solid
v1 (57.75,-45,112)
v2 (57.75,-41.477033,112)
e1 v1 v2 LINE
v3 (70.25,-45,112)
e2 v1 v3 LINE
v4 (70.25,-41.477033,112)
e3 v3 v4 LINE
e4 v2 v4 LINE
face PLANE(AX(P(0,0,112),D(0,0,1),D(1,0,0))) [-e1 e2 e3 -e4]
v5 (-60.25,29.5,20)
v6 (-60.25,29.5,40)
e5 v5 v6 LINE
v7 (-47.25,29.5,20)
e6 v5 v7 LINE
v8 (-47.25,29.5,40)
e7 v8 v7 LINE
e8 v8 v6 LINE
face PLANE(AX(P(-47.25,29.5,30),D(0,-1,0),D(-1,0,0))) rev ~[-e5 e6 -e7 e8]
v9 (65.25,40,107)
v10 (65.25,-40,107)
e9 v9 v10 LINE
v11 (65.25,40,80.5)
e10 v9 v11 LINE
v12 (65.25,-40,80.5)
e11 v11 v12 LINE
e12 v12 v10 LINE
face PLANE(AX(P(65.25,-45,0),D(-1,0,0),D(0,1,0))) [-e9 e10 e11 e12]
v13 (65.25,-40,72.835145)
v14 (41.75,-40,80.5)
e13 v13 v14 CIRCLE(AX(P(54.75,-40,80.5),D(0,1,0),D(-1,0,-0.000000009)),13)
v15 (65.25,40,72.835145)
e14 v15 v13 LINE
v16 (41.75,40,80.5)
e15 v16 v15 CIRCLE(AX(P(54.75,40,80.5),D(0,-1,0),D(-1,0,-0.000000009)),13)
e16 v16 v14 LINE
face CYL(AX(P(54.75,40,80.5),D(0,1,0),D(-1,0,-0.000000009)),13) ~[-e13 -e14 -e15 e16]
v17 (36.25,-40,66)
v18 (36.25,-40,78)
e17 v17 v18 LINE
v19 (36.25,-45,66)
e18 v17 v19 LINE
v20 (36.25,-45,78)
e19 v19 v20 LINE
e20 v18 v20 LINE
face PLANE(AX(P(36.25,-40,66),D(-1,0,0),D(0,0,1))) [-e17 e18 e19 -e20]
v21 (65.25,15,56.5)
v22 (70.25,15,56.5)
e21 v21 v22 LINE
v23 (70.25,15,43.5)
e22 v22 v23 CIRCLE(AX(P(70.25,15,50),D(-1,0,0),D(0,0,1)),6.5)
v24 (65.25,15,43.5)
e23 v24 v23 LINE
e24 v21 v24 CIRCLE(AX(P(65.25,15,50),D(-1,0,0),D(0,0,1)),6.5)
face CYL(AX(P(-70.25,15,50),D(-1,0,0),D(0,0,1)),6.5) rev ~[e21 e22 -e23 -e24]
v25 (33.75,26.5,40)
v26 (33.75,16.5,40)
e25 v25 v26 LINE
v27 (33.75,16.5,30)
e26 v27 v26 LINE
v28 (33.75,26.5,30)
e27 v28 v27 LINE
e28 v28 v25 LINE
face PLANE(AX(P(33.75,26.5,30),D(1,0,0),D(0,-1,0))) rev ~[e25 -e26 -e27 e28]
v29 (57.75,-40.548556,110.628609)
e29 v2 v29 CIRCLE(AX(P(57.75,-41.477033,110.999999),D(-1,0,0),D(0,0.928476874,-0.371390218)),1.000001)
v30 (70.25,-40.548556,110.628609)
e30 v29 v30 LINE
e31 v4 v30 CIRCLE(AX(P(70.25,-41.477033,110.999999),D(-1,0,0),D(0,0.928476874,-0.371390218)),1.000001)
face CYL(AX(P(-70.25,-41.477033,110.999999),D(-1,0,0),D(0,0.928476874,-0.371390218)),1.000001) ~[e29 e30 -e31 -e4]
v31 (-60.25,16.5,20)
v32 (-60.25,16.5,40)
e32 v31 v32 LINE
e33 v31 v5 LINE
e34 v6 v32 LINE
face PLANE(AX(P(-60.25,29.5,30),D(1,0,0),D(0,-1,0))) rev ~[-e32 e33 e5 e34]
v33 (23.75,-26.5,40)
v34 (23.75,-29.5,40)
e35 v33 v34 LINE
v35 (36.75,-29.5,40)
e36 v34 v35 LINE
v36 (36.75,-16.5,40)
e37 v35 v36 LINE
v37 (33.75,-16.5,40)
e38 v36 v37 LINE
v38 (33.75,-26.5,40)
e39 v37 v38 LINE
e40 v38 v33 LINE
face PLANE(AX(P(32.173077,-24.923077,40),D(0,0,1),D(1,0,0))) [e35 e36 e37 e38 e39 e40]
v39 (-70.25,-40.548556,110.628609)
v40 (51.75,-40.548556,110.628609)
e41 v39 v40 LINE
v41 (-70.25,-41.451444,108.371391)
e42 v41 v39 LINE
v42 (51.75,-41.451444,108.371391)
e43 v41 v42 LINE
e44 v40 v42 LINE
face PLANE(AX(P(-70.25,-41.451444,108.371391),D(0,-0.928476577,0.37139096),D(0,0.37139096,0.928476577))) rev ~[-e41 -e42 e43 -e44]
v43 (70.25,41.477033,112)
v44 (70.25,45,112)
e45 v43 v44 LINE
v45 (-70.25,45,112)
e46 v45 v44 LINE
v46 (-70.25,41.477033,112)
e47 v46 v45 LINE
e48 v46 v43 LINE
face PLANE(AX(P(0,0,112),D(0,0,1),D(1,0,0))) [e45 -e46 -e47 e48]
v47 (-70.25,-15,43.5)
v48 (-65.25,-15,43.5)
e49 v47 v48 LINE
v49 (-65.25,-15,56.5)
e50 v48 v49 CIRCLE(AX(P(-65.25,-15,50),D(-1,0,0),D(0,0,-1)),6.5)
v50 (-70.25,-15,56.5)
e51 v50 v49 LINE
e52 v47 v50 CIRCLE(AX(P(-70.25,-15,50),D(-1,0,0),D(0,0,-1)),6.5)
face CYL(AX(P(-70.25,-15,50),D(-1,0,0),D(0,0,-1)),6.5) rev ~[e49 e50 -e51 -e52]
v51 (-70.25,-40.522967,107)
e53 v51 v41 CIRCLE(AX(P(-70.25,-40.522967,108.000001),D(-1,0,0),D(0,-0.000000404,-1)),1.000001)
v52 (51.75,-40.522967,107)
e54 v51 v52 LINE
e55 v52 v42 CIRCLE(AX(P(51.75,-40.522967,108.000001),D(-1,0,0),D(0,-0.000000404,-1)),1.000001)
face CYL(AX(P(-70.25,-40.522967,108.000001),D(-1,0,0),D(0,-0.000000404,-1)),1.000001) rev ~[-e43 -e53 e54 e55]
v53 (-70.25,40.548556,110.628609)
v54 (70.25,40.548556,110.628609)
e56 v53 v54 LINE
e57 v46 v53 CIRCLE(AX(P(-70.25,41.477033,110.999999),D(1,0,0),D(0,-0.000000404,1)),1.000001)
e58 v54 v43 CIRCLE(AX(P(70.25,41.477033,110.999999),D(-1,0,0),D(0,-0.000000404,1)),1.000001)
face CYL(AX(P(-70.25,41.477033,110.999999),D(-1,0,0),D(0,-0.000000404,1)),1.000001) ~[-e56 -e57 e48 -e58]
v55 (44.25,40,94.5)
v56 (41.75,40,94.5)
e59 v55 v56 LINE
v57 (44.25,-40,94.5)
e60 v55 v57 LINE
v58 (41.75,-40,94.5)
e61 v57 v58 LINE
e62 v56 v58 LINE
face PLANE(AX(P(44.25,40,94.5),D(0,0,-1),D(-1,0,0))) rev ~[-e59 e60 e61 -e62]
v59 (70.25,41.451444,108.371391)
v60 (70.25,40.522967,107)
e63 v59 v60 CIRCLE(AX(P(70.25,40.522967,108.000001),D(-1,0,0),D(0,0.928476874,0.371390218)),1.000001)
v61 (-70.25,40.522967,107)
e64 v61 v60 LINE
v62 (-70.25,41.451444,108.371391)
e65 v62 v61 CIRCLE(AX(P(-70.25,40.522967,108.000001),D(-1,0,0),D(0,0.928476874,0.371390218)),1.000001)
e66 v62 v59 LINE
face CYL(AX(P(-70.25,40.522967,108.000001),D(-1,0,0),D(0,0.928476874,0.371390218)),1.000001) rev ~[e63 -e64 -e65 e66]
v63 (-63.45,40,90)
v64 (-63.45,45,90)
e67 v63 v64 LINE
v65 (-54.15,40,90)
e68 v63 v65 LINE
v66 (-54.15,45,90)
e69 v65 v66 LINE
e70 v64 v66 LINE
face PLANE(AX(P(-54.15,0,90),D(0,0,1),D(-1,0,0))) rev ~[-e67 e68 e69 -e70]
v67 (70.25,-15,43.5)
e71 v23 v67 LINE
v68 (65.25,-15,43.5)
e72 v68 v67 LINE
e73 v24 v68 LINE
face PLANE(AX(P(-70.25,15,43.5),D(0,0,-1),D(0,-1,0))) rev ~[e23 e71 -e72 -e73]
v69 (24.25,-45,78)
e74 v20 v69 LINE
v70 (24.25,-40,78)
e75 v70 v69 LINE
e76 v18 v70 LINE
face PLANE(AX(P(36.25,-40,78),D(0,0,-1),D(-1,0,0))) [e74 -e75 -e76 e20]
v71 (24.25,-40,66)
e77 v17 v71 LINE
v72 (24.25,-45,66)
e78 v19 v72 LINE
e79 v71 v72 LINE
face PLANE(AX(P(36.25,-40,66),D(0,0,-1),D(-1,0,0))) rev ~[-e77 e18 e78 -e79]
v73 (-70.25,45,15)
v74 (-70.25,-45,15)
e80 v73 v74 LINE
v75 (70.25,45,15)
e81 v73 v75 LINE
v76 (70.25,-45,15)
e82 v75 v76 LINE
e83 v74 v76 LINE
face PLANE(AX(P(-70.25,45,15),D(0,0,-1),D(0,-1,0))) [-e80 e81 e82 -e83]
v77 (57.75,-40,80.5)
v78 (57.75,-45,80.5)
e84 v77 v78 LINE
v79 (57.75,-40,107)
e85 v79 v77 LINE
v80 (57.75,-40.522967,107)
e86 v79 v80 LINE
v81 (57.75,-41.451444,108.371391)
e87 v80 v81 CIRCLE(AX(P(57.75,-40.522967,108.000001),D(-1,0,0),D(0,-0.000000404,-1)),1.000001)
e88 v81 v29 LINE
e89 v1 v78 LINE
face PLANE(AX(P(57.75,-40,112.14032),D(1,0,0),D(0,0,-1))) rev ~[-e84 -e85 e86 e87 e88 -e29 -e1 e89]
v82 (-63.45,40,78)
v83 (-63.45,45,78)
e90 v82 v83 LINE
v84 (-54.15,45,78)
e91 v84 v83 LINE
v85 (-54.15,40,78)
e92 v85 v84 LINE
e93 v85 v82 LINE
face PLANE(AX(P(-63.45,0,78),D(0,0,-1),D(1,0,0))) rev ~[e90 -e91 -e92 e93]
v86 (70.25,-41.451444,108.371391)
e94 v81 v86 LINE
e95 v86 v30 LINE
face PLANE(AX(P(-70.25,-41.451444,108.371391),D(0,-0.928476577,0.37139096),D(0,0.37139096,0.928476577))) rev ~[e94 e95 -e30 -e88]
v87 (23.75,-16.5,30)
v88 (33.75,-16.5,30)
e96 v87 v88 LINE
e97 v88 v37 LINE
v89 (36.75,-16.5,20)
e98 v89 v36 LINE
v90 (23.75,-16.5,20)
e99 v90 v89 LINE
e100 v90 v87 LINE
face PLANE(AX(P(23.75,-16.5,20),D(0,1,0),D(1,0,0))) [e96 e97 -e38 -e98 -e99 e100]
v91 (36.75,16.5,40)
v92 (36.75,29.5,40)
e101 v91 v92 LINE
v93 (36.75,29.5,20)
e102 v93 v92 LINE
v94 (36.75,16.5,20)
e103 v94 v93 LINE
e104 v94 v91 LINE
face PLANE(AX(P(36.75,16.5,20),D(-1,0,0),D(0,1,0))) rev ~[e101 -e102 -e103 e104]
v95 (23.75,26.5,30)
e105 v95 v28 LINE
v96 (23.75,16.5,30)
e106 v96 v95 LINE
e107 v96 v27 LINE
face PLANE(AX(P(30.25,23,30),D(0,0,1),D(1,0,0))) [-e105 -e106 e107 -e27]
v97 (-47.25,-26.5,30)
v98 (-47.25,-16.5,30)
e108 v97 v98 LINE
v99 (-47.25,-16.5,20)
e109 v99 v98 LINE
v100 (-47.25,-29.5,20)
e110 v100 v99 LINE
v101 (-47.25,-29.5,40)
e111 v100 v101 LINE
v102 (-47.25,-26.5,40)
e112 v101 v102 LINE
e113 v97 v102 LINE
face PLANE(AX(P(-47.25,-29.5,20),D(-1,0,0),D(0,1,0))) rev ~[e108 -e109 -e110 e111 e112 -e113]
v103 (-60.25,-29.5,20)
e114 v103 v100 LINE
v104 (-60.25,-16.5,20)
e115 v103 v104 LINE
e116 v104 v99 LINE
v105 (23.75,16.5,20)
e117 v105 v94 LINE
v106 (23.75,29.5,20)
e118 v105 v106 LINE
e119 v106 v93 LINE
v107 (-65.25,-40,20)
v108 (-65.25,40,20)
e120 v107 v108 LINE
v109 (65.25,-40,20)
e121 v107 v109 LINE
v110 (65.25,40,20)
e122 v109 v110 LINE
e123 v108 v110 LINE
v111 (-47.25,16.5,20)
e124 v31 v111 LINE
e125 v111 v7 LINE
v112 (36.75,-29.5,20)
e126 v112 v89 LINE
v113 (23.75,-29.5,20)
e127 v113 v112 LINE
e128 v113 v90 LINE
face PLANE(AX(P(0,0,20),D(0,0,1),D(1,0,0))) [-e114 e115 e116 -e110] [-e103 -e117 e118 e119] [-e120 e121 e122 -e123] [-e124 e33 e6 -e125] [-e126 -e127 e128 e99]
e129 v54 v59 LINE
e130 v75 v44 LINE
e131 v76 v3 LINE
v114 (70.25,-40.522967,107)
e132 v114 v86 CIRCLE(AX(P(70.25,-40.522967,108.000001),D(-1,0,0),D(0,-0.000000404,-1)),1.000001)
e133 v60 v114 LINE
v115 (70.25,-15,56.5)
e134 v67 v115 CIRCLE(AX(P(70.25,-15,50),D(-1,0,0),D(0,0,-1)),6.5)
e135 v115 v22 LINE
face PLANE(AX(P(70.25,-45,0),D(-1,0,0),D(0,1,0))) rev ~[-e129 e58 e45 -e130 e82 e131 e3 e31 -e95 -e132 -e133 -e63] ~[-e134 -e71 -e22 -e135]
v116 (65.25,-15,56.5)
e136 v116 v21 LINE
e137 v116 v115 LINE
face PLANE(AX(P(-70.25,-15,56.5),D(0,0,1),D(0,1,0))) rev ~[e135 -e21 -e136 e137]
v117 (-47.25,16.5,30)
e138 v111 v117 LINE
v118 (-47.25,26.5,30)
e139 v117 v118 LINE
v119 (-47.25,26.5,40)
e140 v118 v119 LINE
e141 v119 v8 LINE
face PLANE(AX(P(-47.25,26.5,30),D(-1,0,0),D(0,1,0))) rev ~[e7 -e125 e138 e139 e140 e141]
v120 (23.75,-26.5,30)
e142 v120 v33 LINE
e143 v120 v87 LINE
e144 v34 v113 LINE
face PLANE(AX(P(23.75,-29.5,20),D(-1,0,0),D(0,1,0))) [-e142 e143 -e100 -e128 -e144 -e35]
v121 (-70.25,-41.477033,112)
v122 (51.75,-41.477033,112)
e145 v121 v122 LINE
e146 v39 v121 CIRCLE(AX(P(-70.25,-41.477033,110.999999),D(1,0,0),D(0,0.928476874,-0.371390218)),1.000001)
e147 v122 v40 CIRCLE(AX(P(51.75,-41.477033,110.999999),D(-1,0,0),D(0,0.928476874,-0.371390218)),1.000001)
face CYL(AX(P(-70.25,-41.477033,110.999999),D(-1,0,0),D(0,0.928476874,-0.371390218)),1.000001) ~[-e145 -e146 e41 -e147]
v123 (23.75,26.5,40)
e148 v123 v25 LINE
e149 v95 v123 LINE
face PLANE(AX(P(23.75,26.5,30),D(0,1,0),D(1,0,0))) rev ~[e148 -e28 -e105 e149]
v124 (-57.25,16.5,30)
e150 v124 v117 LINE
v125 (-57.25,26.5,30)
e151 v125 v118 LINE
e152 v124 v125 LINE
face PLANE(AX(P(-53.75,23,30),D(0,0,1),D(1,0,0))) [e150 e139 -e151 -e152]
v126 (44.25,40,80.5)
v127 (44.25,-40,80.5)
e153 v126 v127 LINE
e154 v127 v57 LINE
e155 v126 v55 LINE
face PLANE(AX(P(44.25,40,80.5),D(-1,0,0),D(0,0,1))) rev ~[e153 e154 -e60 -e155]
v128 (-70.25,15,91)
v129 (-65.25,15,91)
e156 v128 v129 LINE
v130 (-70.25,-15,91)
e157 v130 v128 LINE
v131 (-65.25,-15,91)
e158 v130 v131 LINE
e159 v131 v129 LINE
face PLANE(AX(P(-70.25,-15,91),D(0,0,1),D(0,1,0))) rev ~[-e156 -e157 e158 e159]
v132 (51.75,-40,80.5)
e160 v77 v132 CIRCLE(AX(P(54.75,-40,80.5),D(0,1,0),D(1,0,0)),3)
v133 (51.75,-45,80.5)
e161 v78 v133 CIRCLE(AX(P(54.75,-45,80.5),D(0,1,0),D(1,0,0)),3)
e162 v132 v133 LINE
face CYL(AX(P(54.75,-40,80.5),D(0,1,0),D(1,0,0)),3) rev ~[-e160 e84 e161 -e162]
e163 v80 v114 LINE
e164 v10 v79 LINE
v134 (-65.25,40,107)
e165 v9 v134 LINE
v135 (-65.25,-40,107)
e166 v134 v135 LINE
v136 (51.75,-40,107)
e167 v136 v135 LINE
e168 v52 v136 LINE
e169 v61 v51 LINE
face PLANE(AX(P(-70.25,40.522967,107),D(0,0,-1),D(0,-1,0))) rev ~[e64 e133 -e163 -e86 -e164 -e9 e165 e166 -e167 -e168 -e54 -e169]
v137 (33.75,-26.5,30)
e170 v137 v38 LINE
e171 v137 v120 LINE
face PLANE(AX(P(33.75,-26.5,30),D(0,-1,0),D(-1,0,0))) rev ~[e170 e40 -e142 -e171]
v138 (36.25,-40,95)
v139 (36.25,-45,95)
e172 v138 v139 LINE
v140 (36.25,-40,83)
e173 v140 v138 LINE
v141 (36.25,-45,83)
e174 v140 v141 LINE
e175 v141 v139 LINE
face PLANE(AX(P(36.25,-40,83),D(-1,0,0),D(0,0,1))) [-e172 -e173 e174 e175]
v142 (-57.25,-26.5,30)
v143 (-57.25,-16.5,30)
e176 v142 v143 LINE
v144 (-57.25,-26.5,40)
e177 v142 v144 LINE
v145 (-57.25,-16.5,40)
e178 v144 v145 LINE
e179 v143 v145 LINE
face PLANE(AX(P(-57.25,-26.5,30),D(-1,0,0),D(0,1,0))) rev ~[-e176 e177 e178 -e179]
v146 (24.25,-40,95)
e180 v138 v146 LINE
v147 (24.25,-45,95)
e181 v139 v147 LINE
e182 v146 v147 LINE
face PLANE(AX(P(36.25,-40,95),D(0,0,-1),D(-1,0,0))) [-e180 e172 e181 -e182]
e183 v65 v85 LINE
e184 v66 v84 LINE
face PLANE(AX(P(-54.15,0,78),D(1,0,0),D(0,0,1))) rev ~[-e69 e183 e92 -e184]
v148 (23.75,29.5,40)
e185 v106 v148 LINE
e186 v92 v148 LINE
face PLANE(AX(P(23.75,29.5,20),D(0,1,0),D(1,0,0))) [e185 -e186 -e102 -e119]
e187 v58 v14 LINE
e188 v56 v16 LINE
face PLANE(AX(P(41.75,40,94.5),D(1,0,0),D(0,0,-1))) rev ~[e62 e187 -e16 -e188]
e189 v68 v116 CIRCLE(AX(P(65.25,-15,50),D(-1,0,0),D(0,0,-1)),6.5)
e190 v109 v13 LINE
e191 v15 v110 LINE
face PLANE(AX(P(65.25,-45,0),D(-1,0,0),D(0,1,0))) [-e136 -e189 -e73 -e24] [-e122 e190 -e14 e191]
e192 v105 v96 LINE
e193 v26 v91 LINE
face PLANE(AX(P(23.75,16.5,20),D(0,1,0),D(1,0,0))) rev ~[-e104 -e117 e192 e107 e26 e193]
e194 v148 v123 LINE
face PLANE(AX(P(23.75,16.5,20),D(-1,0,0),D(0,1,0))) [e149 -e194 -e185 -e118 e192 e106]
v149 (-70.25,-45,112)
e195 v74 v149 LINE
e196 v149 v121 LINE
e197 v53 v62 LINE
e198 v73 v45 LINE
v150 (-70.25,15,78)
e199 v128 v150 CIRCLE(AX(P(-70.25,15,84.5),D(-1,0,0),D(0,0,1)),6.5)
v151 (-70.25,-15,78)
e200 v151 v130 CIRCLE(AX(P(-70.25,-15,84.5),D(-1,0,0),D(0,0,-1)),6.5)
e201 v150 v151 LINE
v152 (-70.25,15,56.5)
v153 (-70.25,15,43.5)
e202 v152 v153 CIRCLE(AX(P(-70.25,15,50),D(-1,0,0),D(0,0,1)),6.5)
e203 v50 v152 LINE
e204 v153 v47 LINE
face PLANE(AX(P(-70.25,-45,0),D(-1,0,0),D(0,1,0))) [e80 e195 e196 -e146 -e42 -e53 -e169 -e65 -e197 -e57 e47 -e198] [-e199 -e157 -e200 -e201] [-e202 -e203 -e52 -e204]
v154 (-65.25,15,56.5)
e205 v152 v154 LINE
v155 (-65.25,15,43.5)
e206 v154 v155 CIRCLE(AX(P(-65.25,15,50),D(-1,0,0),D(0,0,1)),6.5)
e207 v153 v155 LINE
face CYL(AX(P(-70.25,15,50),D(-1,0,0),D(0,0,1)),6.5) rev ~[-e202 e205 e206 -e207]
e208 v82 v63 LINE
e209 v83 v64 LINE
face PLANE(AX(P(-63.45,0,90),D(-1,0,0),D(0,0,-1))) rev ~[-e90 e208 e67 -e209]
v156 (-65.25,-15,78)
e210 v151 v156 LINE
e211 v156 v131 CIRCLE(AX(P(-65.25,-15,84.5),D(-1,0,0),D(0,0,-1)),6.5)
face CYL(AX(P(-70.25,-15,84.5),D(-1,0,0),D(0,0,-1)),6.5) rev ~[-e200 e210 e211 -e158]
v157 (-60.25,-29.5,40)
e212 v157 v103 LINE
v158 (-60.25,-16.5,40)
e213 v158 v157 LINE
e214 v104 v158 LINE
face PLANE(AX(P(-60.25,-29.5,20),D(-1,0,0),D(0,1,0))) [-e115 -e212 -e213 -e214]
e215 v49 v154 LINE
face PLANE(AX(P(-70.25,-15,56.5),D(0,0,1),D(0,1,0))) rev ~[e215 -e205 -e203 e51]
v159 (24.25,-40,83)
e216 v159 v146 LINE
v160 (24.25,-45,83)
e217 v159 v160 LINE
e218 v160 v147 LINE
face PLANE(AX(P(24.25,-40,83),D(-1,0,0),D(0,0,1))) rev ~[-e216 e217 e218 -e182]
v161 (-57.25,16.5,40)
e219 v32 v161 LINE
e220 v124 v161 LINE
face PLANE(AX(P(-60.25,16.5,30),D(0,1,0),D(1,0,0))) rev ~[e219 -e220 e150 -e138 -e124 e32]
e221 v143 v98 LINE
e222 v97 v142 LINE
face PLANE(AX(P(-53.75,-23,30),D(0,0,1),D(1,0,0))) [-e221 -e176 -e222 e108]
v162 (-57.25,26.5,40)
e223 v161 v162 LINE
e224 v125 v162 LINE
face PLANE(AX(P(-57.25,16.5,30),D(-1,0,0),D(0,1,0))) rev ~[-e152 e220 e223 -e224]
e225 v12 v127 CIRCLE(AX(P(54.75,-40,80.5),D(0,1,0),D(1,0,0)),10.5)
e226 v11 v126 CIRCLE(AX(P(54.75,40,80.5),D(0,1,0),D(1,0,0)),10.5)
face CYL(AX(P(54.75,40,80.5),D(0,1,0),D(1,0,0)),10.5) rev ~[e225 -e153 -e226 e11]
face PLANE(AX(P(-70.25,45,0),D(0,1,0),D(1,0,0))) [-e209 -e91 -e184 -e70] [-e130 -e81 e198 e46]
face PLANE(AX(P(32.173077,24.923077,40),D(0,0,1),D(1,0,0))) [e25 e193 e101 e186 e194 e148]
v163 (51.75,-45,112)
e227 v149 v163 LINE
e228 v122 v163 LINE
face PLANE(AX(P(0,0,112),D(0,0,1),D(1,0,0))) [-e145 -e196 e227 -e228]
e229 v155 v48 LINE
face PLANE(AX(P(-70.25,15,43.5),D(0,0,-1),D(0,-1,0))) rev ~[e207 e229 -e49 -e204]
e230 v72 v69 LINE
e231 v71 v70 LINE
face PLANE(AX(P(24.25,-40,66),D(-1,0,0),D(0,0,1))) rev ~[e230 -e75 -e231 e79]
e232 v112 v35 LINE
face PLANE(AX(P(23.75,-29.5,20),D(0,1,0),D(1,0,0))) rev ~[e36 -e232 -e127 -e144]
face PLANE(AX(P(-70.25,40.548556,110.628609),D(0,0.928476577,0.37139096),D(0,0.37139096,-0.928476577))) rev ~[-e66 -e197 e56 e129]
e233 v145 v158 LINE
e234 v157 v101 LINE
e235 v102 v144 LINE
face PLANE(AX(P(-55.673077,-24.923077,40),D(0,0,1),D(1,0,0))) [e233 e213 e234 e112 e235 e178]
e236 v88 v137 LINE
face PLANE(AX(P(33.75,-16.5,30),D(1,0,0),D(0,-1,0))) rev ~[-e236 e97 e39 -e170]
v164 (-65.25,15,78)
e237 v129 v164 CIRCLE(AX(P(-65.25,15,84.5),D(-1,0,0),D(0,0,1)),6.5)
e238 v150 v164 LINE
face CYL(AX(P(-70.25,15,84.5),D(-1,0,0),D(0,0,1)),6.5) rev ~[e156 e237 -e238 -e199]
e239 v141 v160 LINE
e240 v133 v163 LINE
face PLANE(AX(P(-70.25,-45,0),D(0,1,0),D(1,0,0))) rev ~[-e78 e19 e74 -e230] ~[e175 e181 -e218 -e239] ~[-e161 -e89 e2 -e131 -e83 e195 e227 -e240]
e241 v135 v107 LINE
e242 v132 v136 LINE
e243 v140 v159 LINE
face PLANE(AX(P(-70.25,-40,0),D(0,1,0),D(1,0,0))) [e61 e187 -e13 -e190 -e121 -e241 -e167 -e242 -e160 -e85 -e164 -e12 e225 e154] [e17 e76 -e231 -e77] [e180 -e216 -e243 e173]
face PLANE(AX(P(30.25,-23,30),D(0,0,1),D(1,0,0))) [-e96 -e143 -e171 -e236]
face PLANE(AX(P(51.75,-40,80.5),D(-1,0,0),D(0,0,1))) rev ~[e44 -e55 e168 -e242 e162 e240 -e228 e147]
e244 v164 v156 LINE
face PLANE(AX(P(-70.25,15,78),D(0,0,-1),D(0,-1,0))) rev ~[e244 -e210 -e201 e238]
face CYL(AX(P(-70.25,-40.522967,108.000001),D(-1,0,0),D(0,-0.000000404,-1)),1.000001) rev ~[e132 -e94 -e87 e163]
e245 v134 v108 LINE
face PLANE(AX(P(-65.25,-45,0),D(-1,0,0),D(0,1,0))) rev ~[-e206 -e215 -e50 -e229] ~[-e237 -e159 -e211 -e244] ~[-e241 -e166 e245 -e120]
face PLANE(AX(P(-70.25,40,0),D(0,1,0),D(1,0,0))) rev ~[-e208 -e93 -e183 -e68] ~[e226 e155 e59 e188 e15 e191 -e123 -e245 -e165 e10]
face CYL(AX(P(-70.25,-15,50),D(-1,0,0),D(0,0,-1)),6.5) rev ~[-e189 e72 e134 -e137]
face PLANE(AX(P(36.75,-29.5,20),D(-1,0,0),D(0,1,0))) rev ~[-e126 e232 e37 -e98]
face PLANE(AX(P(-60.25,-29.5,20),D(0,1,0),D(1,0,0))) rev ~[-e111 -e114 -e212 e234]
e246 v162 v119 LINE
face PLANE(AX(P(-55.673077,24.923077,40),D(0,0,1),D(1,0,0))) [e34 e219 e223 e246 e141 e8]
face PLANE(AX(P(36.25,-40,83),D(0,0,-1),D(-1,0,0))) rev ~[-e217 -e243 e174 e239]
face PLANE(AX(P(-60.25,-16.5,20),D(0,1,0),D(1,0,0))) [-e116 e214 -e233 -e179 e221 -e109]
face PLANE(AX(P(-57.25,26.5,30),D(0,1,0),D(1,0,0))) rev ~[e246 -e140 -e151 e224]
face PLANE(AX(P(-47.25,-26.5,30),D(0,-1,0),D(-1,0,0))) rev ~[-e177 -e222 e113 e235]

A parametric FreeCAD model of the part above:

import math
import FreeCAD as App
import Part
import Sketcher

V = App.Vector


def faces_at(feature, points):
    """Names of the faces that lie closest to the given points."""
    faces = feature.Shape.Faces
    near = lambda p: min(range(len(faces)), key=lambda i: faces[i].distToShape(Part.Vertex(*p))[0])
    return sorted({f"Face{near(p) + 1}" for p in points})

doc = App.newDocument("Part")
params = doc.addObject("Spreadsheet::Sheet", "Params")
for row, (alias, value) in enumerate([
    ("sketch1_height", "90 mm"),
    ("sketch1_width", "140.5 mm"),
    ("pad1_length", "112 mm"),
    ("thickness_wall", "5 mm"),
    ("sketch2_radius", "1.000001 mm"),
    ("pocket1_length", "147.9 mm"),
    ("sketch3_radius", "13 mm"),
    ("sketch3_radius2", "10.5 mm"),
    ("sketch3_height", "14 mm"),
    ("pad2_length", "83.1 mm"),
    ("sketch4_radius", "3 mm"),
    ("sketch4_width", "12 mm"),
    ("pocket2_length", "25 mm"),
    ("sketch5_height", "80 mm"),
    ("sketch5_width", "130.5 mm"),
    ("pad3_length", "15 mm"),
    ("sketch6_radius", "6.5 mm"),
    ("sketch6_width", "90 mm"),
    ("sketch6_width2", "30 mm"),
    ("sketch6_height", "15 mm"),
    ("pocket3_length", "174.4 mm"),
    ("sketch7_radius", "6.5 mm"),
    ("sketch7_width", "30 mm"),
    ("pocket4_length", "25 mm"),
    ("sketch8_width", "13 mm"),
    ("pad4_length", "10 mm"),
    ("sketch9_width", "13 mm"),
    ("sketch9_width2", "3 mm"),
    ("pad5_length", "10 mm"),
    ("sketch10_height", "12 mm"),
    ("sketch10_width", "9.3 mm"),
    ("pocket5_length", "61.2 mm"),
], start=1):
    params.set(f"A{row}", alias)
    params.set(f"B{row}", "=" + value)
    params.setAlias(f"B{row}", alias)

body = doc.addObject("PartDesign::Body", "Body")

# Sketch on XY plane
sketch1 = body.newObject("Sketcher::SketchObject", "Sketch")
sketch1.AttachmentSupport = (doc.getObject("XY_Plane"), [""])
sketch1.MapMode = "FlatFace"
sketch1.addGeometry(Part.LineSegment(V(-70, 45, 0), V(-70, -45, 0)), False)
sketch1.addGeometry(Part.LineSegment(V(-70, -45, 0), V(70, -45, 0)), False)
sketch1.addGeometry(Part.LineSegment(V(70, -45, 0), V(70, 45, 0)), False)
sketch1.addGeometry(Part.LineSegment(V(70, 45, 0), V(-70, 45, 0)), False)
sketch1.addConstraint(Sketcher.Constraint("Coincident", 0, 2, 1, 1))
sketch1.addConstraint(Sketcher.Constraint("Coincident", 1, 2, 2, 1))
sketch1.addConstraint(Sketcher.Constraint("Coincident", 2, 2, 3, 1))
sketch1.addConstraint(Sketcher.Constraint("Coincident", 3, 2, 0, 1))
sketch1.addConstraint(Sketcher.Constraint("Vertical", 0))
sketch1.addConstraint(Sketcher.Constraint("Horizontal", 1))
sketch1.addConstraint(Sketcher.Constraint("Vertical", 2))
sketch1.addConstraint(Sketcher.Constraint("Horizontal", 3))
sketch1.addConstraint(Sketcher.Constraint("Symmetric", 0, 2, 2, 2, -1, 1))
sketch1.addConstraint(Sketcher.Constraint("DistanceY", 0, 2, 0, 1, 90.0))
sketch1.addConstraint(Sketcher.Constraint("DistanceX", 1, 1, 1, 2, 140.5))
sketch1.setExpression("Constraints[9]", "Params.sketch1_height")
sketch1.setExpression("Constraints[10]", "Params.sketch1_width")
pad1 = body.newObject("PartDesign::Pad", "Pad")
pad1.Profile = sketch1
pad1.setExpression("Length", "Params.pad1_length")
doc.recompute()

thickness = body.newObject("PartDesign::Thickness", "Thickness")
thickness.Base = (pad1, faces_at(pad1, [(0, 0, 112)]))
thickness.setExpression("Value", "Params.thickness_wall")
thickness.Reversed = True
thickness.Join = "Arc"

# Sketch on YZ plane
sketch2 = body.newObject("Sketcher::SketchObject", "Sketch001")
sketch2.AttachmentSupport = (doc.getObject("YZ_Plane"), [""])
sketch2.MapMode = "FlatFace"
sketch2.AttachmentOffset = App.Placement(V(0, 0, -70.25), App.Rotation())
sketch2.addGeometry(Part.LineSegment(V(40.5, 107, 0), V(-40.5, 107, 0)), False)
sketch2.addGeometry(Part.ArcOfCircle(Part.Circle(V(-40.5, 108, 0), V(0, 0, 1), 1), math.radians(158), math.radians(270)), False)
sketch2.addGeometry(Part.LineSegment(V(-41.5, 108.4, 0), V(-40.5, 110.6, 0)), False)
sketch2.addGeometry(Part.ArcOfCircle(Part.Circle(V(-41.5, 111, 0), V(0, 0, 1), 1), math.radians(-22), math.radians(90)), False)
sketch2.addGeometry(Part.LineSegment(V(-41.5, 112, 0), V(41.5, 112, 0)), False)
sketch2.addGeometry(Part.ArcOfCircle(Part.Circle(V(41.5, 111, 0), V(0, 0, 1), 1), math.radians(90), math.radians(202)), False)
sketch2.addGeometry(Part.LineSegment(V(40.5, 110.6, 0), V(41.5, 108.4, 0)), False)
sketch2.addGeometry(Part.ArcOfCircle(Part.Circle(V(40.5, 108, 0), V(0, 0, 1), 1), math.radians(-90), math.radians(22)), False)
sketch2.addConstraint(Sketcher.Constraint("Tangent", 0, 2, 1, 2))
sketch2.addConstraint(Sketcher.Constraint("Tangent", 1, 1, 2, 1))
sketch2.addConstraint(Sketcher.Constraint("Tangent", 2, 2, 3, 1))
sketch2.addConstraint(Sketcher.Constraint("Tangent", 3, 2, 4, 1))
sketch2.addConstraint(Sketcher.Constraint("Tangent", 4, 2, 5, 1))
sketch2.addConstraint(Sketcher.Constraint("Tangent", 5, 2, 6, 1))
sketch2.addConstraint(Sketcher.Constraint("Tangent", 6, 2, 7, 2))
sketch2.addConstraint(Sketcher.Constraint("Tangent", 7, 1, 0, 1))
sketch2.addConstraint(Sketcher.Constraint("Horizontal", 0))
sketch2.addConstraint(Sketcher.Constraint("Horizontal", 4))
sketch2.addConstraint(Sketcher.Constraint("Equal", 1, 3))
sketch2.addConstraint(Sketcher.Constraint("Equal", 3, 5))
sketch2.addConstraint(Sketcher.Constraint("Equal", 5, 7))
sketch2.addConstraint(Sketcher.Constraint("Symmetric", 2, 2, 5, 2, -2))
sketch2.addConstraint(Sketcher.Constraint("Radius", 1, 1.000001))
sketch2.addConstraint(Sketcher.Constraint("DistanceY", -1, 1, 1, 3, 108.000001))
sketch2.addConstraint(Sketcher.Constraint("DistanceY", -1, 1, 3, 3, 110.999999))
sketch2.addConstraint(Sketcher.Constraint("DistanceX", 1, 3, 5, 3, 82.0))
sketch2.addConstraint(Sketcher.Constraint("Distance", 2, 2.431098))
sketch2.setExpression("Constraints[14]", "Params.sketch2_radius")
pocket1 = body.newObject("PartDesign::Pocket", "Pocket")
pocket1.Profile = sketch2
pocket1.setExpression("Length", "Params.pocket1_length")
pocket1.Reversed = True

# Sketch on XZ plane
sketch3 = body.newObject("Sketcher::SketchObject", "Sketch002")
sketch3.AttachmentSupport = (doc.getObject("XZ_Plane"), [""])
sketch3.MapMode = "FlatFace"
sketch3.AttachmentOffset = App.Placement(V(0, 0, -40), App.Rotation())
sketch3.addGeometry(Part.ArcOfCircle(Part.Circle(V(54.8, 80.5, 0), V(0, 0, 1), 10.5), math.radians(180), math.radians(360)), False)
sketch3.addGeometry(Part.LineSegment(V(44.2, 80.5, 0), V(44.2, 94.5, 0)), False)
sketch3.addGeometry(Part.LineSegment(V(44.2, 94.5, 0), V(41.8, 94.5, 0)), False)
sketch3.addGeometry(Part.LineSegment(V(41.8, 94.5, 0), V(41.8, 80.5, 0)), False)
sketch3.addGeometry(Part.ArcOfCircle(Part.Circle(V(54.8, 80.5, 0), V(0, 0, 1), 13), math.radians(-180), math.radians(-36)), False)
sketch3.addGeometry(Part.LineSegment(V(65.2, 72.8, 0), V(65.2, 80.5, 0)), False)
sketch3.addConstraint(Sketcher.Constraint("Tangent", 0, 1, 1, 1))
sketch3.addConstraint(Sketcher.Constraint("Coincident", 1, 2, 2, 1))
sketch3.addConstraint(Sketcher.Constraint("Coincident", 2, 2, 3, 1))
sketch3.addConstraint(Sketcher.Constraint("Tangent", 3, 2, 4, 1))
sketch3.addConstraint(Sketcher.Constraint("Coincident", 4, 2, 5, 1))
sketch3.addConstraint(Sketcher.Constraint("Tangent", 5, 2, 0, 2))
sketch3.addConstraint(Sketcher.Constraint("Vertical", 1))
sketch3.addConstraint(Sketcher.Constraint("Horizontal", 2))
sketch3.addConstraint(Sketcher.Constraint("Vertical", 3))
sketch3.addConstraint(Sketcher.Constraint("Vertical", 5))
sketch3.addConstraint(Sketcher.Constraint("Coincident", 4, 3, 0, 3))
sketch3.addConstraint(Sketcher.Constraint("Radius", 4, 13.0))
sketch3.addConstraint(Sketcher.Constraint("Radius", 0, 10.5))
sketch3.addConstraint(Sketcher.Constraint("DistanceY", 1, 1, 1, 2, 14.0))
sketch3.addConstraint(Sketcher.Constraint("DistanceY", -1, 1, 0, 3, 80.5))
sketch3.addConstraint(Sketcher.Constraint("DistanceX", -1, 1, 0, 3, 54.75))
sketch3.setExpression("Constraints[11]", "Params.sketch3_radius")
sketch3.setExpression("Constraints[12]", "Params.sketch3_radius2")
sketch3.setExpression("Constraints[13]", "Params.sketch3_height")
pad2 = body.newObject("PartDesign::Pad", "Pad001")
pad2.Profile = sketch3
pad2.setExpression("Length", "Params.pad2_length")

# Sketch on XZ plane
sketch4 = body.newObject("Sketcher::SketchObject", "Sketch003")
sketch4.AttachmentSupport = (doc.getObject("XZ_Plane"), [""])
sketch4.MapMode = "FlatFace"
sketch4.AttachmentOffset = App.Placement(V(0, 0, 40), App.Rotation())
sketch4.addGeometry(Part.LineSegment(V(57.8, 112.1, 0), V(57.8, 80.5, 0)), False)
sketch4.addGeometry(Part.ArcOfCircle(Part.Circle(V(54.8, 80.5, 0), V(0, 0, 1), 3), math.radians(180), math.radians(360)), False)
sketch4.addGeometry(Part.LineSegment(V(51.8, 80.5, 0), V(51.8, 112.1, 0)), False)
sketch4.addGeometry(Part.LineSegment(V(51.8, 112.1, 0), V(57.8, 112.1, 0)), False)
sketch4.addGeometry(Part.LineSegment(V(36.2, 95, 0), V(36.2, 83, 0)), False)
sketch4.addGeometry(Part.LineSegment(V(36.2, 83, 0), V(24.2, 83, 0)), False)
sketch4.addGeometry(Part.LineSegment(V(24.2, 83, 0), V(24.2, 95, 0)), False)
sketch4.addGeometry(Part.LineSegment(V(24.2, 95, 0), V(36.2, 95, 0)), False)
sketch4.addGeometry(Part.LineSegment(V(36.2, 78, 0), V(36.2, 66, 0)), False)
sketch4.addGeometry(Part.LineSegment(V(36.2, 66, 0), V(24.2, 66, 0)), False)
sketch4.addGeometry(Part.LineSegment(V(24.2, 66, 0), V(24.2, 78, 0)), False)
sketch4.addGeometry(Part.LineSegment(V(24.2, 78, 0), V(36.2, 78, 0)), False)
sketch4.addConstraint(Sketcher.Constraint("Tangent", 0, 2, 1, 2))
sketch4.addConstraint(Sketcher.Constraint("Tangent", 1, 1, 2, 1))
sketch4.addConstraint(Sketcher.Constraint("Coincident", 2, 2, 3, 1))
sketch4.addConstraint(Sketcher.Constraint("Coincident", 3, 2, 0, 1))
sketch4.addConstraint(Sketcher.Constraint("Coincident", 4, 2, 5, 1))
sketch4.addConstraint(Sketcher.Constraint("Coincident", 5, 2, 6, 1))
sketch4.addConstraint(Sketcher.Constraint("Coincident", 6, 2, 7, 1))
sketch4.addConstraint(Sketcher.Constraint("Coincident", 7, 2, 4, 1))
sketch4.addConstraint(Sketcher.Constraint("Coincident", 8, 2, 9, 1))
sketch4.addConstraint(Sketcher.Constraint("Coincident", 9, 2, 10, 1))
sketch4.addConstraint(Sketcher.Constraint("Coincident", 10, 2, 11, 1))
sketch4.addConstraint(Sketcher.Constraint("Coincident", 11, 2, 8, 1))
sketch4.addConstraint(Sketcher.Constraint("Vertical", 0))
sketch4.addConstraint(Sketcher.Constraint("Vertical", 2))
sketch4.addConstraint(Sketcher.Constraint("Horizontal", 3))
sketch4.addConstraint(Sketcher.Constraint("Vertical", 4))
sketch4.addConstraint(Sketcher.Constraint("Horizontal", 5))
sketch4.addConstraint(Sketcher.Constraint("Vertical", 6))
sketch4.addConstraint(Sketcher.Constraint("Horizontal", 7))
sketch4.addConstraint(Sketcher.Constraint("Vertical", 8))
sketch4.addConstraint(Sketcher.Constraint("Horizontal", 9))
sketch4.addConstraint(Sketcher.Constraint("Vertical", 10))
sketch4.addConstraint(Sketcher.Constraint("Horizontal", 11))
sketch4.addConstraint(Sketcher.Constraint("Vertical", 7, 2, 8, 2))
sketch4.addConstraint(Sketcher.Constraint("Vertical", 6, 2, 9, 2))
sketch4.addConstraint(Sketcher.Constraint("Equal", 11, 4))
sketch4.addConstraint(Sketcher.Constraint("Equal", 6, 8))
sketch4.addConstraint(Sketcher.Constraint("Radius", 1, 3.0))
sketch4.addConstraint(Sketcher.Constraint("DistanceX", 5, 2, 5, 1, 12.0))
sketch4.addConstraint(Sketcher.Constraint("DistanceY", -1, 1, 4, 2, 83.0))
sketch4.addConstraint(Sketcher.Constraint("DistanceY", -1, 1, 8, 2, 66.0))
sketch4.addConstraint(Sketcher.Constraint("DistanceY", -1, 1, 1, 3, 80.5))
sketch4.addConstraint(Sketcher.Constraint("DistanceX", 4, 2, 1, 1, 15.5))
sketch4.addConstraint(Sketcher.Constraint("DistanceX", -1, 1, 1, 3, 54.75))
sketch4.addConstraint(Sketcher.Constraint("DistanceY", 0, 2, 0, 1, 31.64032))
sketch4.setExpression("Constraints[27]", "Params.sketch4_radius")
sketch4.setExpression("Constraints[28]", "Params.sketch4_width")
pocket2 = body.newObject("PartDesign::Pocket", "Pocket001")
pocket2.Profile = sketch4
pocket2.setExpression("Length", "Params.pocket2_length")
pocket2.Reversed = True

# Sketch on XY plane
sketch5 = body.newObject("Sketcher::SketchObject", "Sketch004")
sketch5.AttachmentSupport = (doc.getObject("XY_Plane"), [""])
sketch5.MapMode = "FlatFace"
sketch5.AttachmentOffset = App.Placement(V(0, 0, 5), App.Rotation())
sketch5.addGeometry(Part.LineSegment(V(-65, 40, 0), V(-65, -40, 0)), False)
sketch5.addGeometry(Part.LineSegment(V(-65, -40, 0), V(65, -40, 0)), False)
sketch5.addGeometry(Part.LineSegment(V(65, -40, 0), V(65, 40, 0)), False)
sketch5.addGeometry(Part.LineSegment(V(65, 40, 0), V(-65, 40, 0)), False)
sketch5.addConstraint(Sketcher.Constraint("Coincident", 0, 2, 1, 1))
sketch5.addConstraint(Sketcher.Constraint("Coincident", 1, 2, 2, 1))
sketch5.addConstraint(Sketcher.Constraint("Coincident", 2, 2, 3, 1))
sketch5.addConstraint(Sketcher.Constraint("Coincident", 3, 2, 0, 1))
sketch5.addConstraint(Sketcher.Constraint("Vertical", 0))
sketch5.addConstraint(Sketcher.Constraint("Horizontal", 1))
sketch5.addConstraint(Sketcher.Constraint("Vertical", 2))
sketch5.addConstraint(Sketcher.Constraint("Horizontal", 3))
sketch5.addConstraint(Sketcher.Constraint("Symmetric", 0, 2, 2, 2, -1, 1))
sketch5.addConstraint(Sketcher.Constraint("DistanceY", 0, 2, 0, 1, 80.0))
sketch5.addConstraint(Sketcher.Constraint("DistanceX", 1, 1, 1, 2, 130.5))
sketch5.setExpression("Constraints[9]", "Params.sketch5_height")
sketch5.setExpression("Constraints[10]", "Params.sketch5_width")
pad3 = body.newObject("PartDesign::Pad", "Pad002")
pad3.Profile = sketch5
pad3.setExpression("Length", "Params.pad3_length")

# Sketch on YZ plane
sketch6 = body.newObject("Sketcher::SketchObject", "Sketch005")
sketch6.AttachmentSupport = (doc.getObject("YZ_Plane"), [""])
sketch6.MapMode = "FlatFace"
sketch6.AttachmentOffset = App.Placement(V(0, 0, -70.25), App.Rotation())
sketch6.addGeometry(Part.LineSegment(V(45, 15, 0), V(45, 0, 0)), False)
sketch6.addGeometry(Part.LineSegment(V(45, 0, 0), V(-45, 0, 0)), False)
sketch6.addGeometry(Part.LineSegment(V(-45, 0, 0), V(-45, 15, 0)), False)
sketch6.addGeometry(Part.LineSegment(V(-45, 15, 0), V(45, 15, 0)), False)
sketch6.addGeometry(Part.ArcOfCircle(Part.Circle(V(-15, 50, 0), V(0, 0, 1), 6), math.radians(90), math.radians(270)), False)
sketch6.addGeometry(Part.LineSegment(V(-15, 56, 0), V(15, 56, 0)), False)
sketch6.addGeometry(Part.ArcOfCircle(Part.Circle(V(15, 50, 0), V(0, 0, 1), 6), math.radians(-90), math.radians(90)), False)
sketch6.addGeometry(Part.LineSegment(V(15, 44, 0), V(-15, 44, 0)), False)
sketch6.addConstraint(Sketcher.Constraint("Coincident", 0, 2, 1, 1))
sketch6.addConstraint(Sketcher.Constraint("Coincident", 1, 2, 2, 1))
sketch6.addConstraint(Sketcher.Constraint("Coincident", 2, 2, 3, 1))
sketch6.addConstraint(Sketcher.Constraint("Coincident", 3, 2, 0, 1))
sketch6.addConstraint(Sketcher.Constraint("Tangent", 4, 1, 5, 1))
sketch6.addConstraint(Sketcher.Constraint("Tangent", 5, 2, 6, 2))
sketch6.addConstraint(Sketcher.Constraint("Tangent", 6, 1, 7, 1))
sketch6.addConstraint(Sketcher.Constraint("Tangent", 7, 2, 4, 2))
sketch6.addConstraint(Sketcher.Constraint("Vertical", 0))
sketch6.addConstraint(Sketcher.Constraint("Horizontal", 1))
sketch6.addConstraint(Sketcher.Constraint("Vertical", 2))
sketch6.addConstraint(Sketcher.Constraint("Horizontal", 3))
sketch6.addConstraint(Sketcher.Constraint("Horizontal", 5))
sketch6.addConstraint(Sketcher.Constraint("Horizontal", 7))
sketch6.addConstraint(Sketcher.Constraint("Symmetric", 0, 2, 1, 2, -1, 1))
sketch6.addConstraint(Sketcher.Constraint("Radius", 4, 6.5))
sketch6.addConstraint(Sketcher.Constraint("DistanceX", 1, 2, 1, 1, 90.0))
sketch6.addConstraint(Sketcher.Constraint("DistanceX", 5, 1, 5, 2, 30.0))
sketch6.addConstraint(Sketcher.Constraint("DistanceY", 0, 2, 0, 1, 15.0))
sketch6.addConstraint(Sketcher.Constraint("DistanceX", 4, 3, -1, 1, 15.0))
sketch6.addConstraint(Sketcher.Constraint("DistanceY", -1, 1, 4, 3, 50.0))
sketch6.setExpression("Constraints[15]", "Params.sketch6_radius")
sketch6.setExpression("Constraints[16]", "Params.sketch6_width")
sketch6.setExpression("Constraints[17]", "Params.sketch6_width2")
sketch6.setExpression("Constraints[18]", "Params.sketch6_height")
pocket3 = body.newObject("PartDesign::Pocket", "Pocket002")
pocket3.Profile = sketch6
pocket3.setExpression("Length", "Params.pocket3_length")
pocket3.Reversed = True

# Sketch on YZ plane
sketch7 = body.newObject("Sketcher::SketchObject", "Sketch006")
sketch7.AttachmentSupport = (doc.getObject("YZ_Plane"), [""])
sketch7.MapMode = "FlatFace"
sketch7.AttachmentOffset = App.Placement(V(0, 0, -70.25), App.Rotation())
sketch7.addGeometry(Part.LineSegment(V(15, 78, 0), V(-15, 78, 0)), False)
sketch7.addGeometry(Part.ArcOfCircle(Part.Circle(V(-15, 84, 0), V(0, 0, 1), 6), math.radians(90), math.radians(270)), False)
sketch7.addGeometry(Part.LineSegment(V(-15, 91, 0), V(15, 91, 0)), False)
sketch7.addGeometry(Part.ArcOfCircle(Part.Circle(V(15, 84, 0), V(0, 0, 1), 6), math.radians(-90), math.radians(90)), False)
sketch7.addConstraint(Sketcher.Constraint("Tangent", 0, 2, 1, 2))
sketch7.addConstraint(Sketcher.Constraint("Tangent", 1, 1, 2, 1))
sketch7.addConstraint(Sketcher.Constraint("Tangent", 2, 2, 3, 2))
sketch7.addConstraint(Sketcher.Constraint("Tangent", 3, 1, 0, 1))
sketch7.addConstraint(Sketcher.Constraint("Horizontal", 0))
sketch7.addConstraint(Sketcher.Constraint("Horizontal", 2))
sketch7.addConstraint(Sketcher.Constraint("Radius", 1, 6.5))
sketch7.addConstraint(Sketcher.Constraint("DistanceX", 0, 2, 0, 1, 30.0))
sketch7.addConstraint(Sketcher.Constraint("DistanceX", 1, 3, -1, 1, 15.0))
sketch7.addConstraint(Sketcher.Constraint("DistanceY", -1, 1, 0, 2, 78.0))
sketch7.setExpression("Constraints[6]", "Params.sketch7_radius")
sketch7.setExpression("Constraints[7]", "Params.sketch7_width")
pocket4 = body.newObject("PartDesign::Pocket", "Pocket003")
pocket4.Profile = sketch7
pocket4.setExpression("Length", "Params.pocket4_length")
pocket4.Reversed = True

# Sketch on XY plane
sketch8 = body.newObject("Sketcher::SketchObject", "Sketch007")
sketch8.AttachmentSupport = (doc.getObject("XY_Plane"), [""])
sketch8.MapMode = "FlatFace"
sketch8.AttachmentOffset = App.Placement(V(0, 0, 20), App.Rotation())
sketch8.addGeometry(Part.LineSegment(V(-60, 30, 0), V(-60, 16, 0)), False)
sketch8.addGeometry(Part.LineSegment(V(-60, 16, 0), V(-47, 16, 0)), False)
sketch8.addGeometry(Part.LineSegment(V(-47, 16, 0), V(-47, 30, 0)), False)
sketch8.addGeometry(Part.LineSegment(V(-47, 30, 0), V(-60, 30, 0)), False)
sketch8.addGeometry(Part.LineSegment(V(24, 30, 0), V(24, 16, 0)), False)
sketch8.addGeometry(Part.LineSegment(V(24, 16, 0), V(37, 16, 0)), False)
sketch8.addGeometry(Part.LineSegment(V(37, 16, 0), V(37, 30, 0)), False)
sketch8.addGeometry(Part.LineSegment(V(37, 30, 0), V(24, 30, 0)), False)
sketch8.addGeometry(Part.LineSegment(V(24, -16, 0), V(24, -30, 0)), False)
sketch8.addGeometry(Part.LineSegment(V(24, -30, 0), V(37, -30, 0)), False)
sketch8.addGeometry(Part.LineSegment(V(37, -30, 0), V(37, -16, 0)), False)
sketch8.addGeometry(Part.LineSegment(V(37, -16, 0), V(24, -16, 0)), False)
sketch8.addGeometry(Part.LineSegment(V(-60, -16, 0), V(-60, -30, 0)), False)
sketch8.addGeometry(Part.LineSegment(V(-60, -30, 0), V(-47, -30, 0)), False)
sketch8.addGeometry(Part.LineSegment(V(-47, -30, 0), V(-47, -16, 0)), False)
sketch8.addGeometry(Part.LineSegment(V(-47, -16, 0), V(-60, -16, 0)), False)
sketch8.addConstraint(Sketcher.Constraint("Coincident", 0, 2, 1, 1))
sketch8.addConstraint(Sketcher.Constraint("Coincident", 1, 2, 2, 1))
sketch8.addConstraint(Sketcher.Constraint("Coincident", 2, 2, 3, 1))
sketch8.addConstraint(Sketcher.Constraint("Coincident", 3, 2, 0, 1))
sketch8.addConstraint(Sketcher.Constraint("Coincident", 4, 2, 5, 1))
sketch8.addConstraint(Sketcher.Constraint("Coincident", 5, 2, 6, 1))
sketch8.addConstraint(Sketcher.Constraint("Coincident", 6, 2, 7, 1))
sketch8.addConstraint(Sketcher.Constraint("Coincident", 7, 2, 4, 1))
sketch8.addConstraint(Sketcher.Constraint("Coincident", 8, 2, 9, 1))
sketch8.addConstraint(Sketcher.Constraint("Coincident", 9, 2, 10, 1))
sketch8.addConstraint(Sketcher.Constraint("Coincident", 10, 2, 11, 1))
sketch8.addConstraint(Sketcher.Constraint("Coincident", 11, 2, 8, 1))
sketch8.addConstraint(Sketcher.Constraint("Coincident", 12, 2, 13, 1))
sketch8.addConstraint(Sketcher.Constraint("Coincident", 13, 2, 14, 1))
sketch8.addConstraint(Sketcher.Constraint("Coincident", 14, 2, 15, 1))
sketch8.addConstraint(Sketcher.Constraint("Coincident", 15, 2, 12, 1))
sketch8.addConstraint(Sketcher.Constraint("Vertical", 0))
sketch8.addConstraint(Sketcher.Constraint("Horizontal", 1))
sketch8.addConstraint(Sketcher.Constraint("Vertical", 2))
sketch8.addConstraint(Sketcher.Constraint("Horizontal", 3))
sketch8.addConstraint(Sketcher.Constraint("Vertical", 4))
sketch8.addConstraint(Sketcher.Constraint("Horizontal", 5))
sketch8.addConstraint(Sketcher.Constraint("Vertical", 6))
sketch8.addConstraint(Sketcher.Constraint("Horizontal", 7))
sketch8.addConstraint(Sketcher.Constraint("Vertical", 8))
sketch8.addConstraint(Sketcher.Constraint("Horizontal", 9))
sketch8.addConstraint(Sketcher.Constraint("Vertical", 10))
sketch8.addConstraint(Sketcher.Constraint("Horizontal", 11))
sketch8.addConstraint(Sketcher.Constraint("Vertical", 12))
sketch8.addConstraint(Sketcher.Constraint("Horizontal", 13))
sketch8.addConstraint(Sketcher.Constraint("Vertical", 14))
sketch8.addConstraint(Sketcher.Constraint("Horizontal", 15))
sketch8.addConstraint(Sketcher.Constraint("Symmetric", 7, 2, 8, 2, -1))
sketch8.addConstraint(Sketcher.Constraint("Symmetric", 5, 2, 10, 2, -1))
sketch8.addConstraint(Sketcher.Constraint("Symmetric", 3, 2, 12, 2, -1))
sketch8.addConstraint(Sketcher.Constraint("Symmetric", 1, 2, 14, 2, -1))
sketch8.addConstraint(Sketcher.Constraint("Horizontal", 1, 2, 4, 2))
sketch8.addConstraint(Sketcher.Constraint("Horizontal", 3, 2, 6, 2))
sketch8.addConstraint(Sketcher.Constraint("Equal", 3, 5))
sketch8.addConstraint(Sketcher.Constraint("Equal", 15, 0))
sketch8.addConstraint(Sketcher.Constraint("DistanceX", 1, 1, 1, 2, 13.0))
sketch8.addConstraint(Sketcher.Constraint("DistanceX", 1, 2, 4, 2, 71.0))
sketch8.addConstraint(Sketcher.Constraint("DistanceY", 8, 2, 4, 2, 46.0))
sketch8.addConstraint(Sketcher.Constraint("DistanceX", 0, 2, -1, 1, 60.25))
sketch8.setExpression("Constraints[40]", "Params.sketch8_width")
pad4 = body.newObject("PartDesign::Pad", "Pad003")
pad4.Profile = sketch8
pad4.setExpression("Length", "Params.pad4_length")

# Sketch on XY plane
sketch9 = body.newObject("Sketcher::SketchObject", "Sketch008")
sketch9.AttachmentSupport = (doc.getObject("XY_Plane"), [""])
sketch9.MapMode = "FlatFace"
sketch9.AttachmentOffset = App.Placement(V(0, 0, 30), App.Rotation())
sketch9.addGeometry(Part.LineSegment(V(-47.2, 29.5, 0), V(-60.2, 29.5, 0)), False)
sketch9.addGeometry(Part.LineSegment(V(-60.2, 29.5, 0), V(-60.2, 16.5, 0)), False)
sketch9.addGeometry(Part.LineSegment(V(-60.2, 16.5, 0), V(-57.2, 16.5, 0)), False)
sketch9.addGeometry(Part.LineSegment(V(-57.2, 16.5, 0), V(-57.2, 26.5, 0)), False)
sketch9.addGeometry(Part.LineSegment(V(-57.2, 26.5, 0), V(-47.2, 26.5, 0)), False)
sketch9.addGeometry(Part.LineSegment(V(-47.2, 26.5, 0), V(-47.2, 29.5, 0)), False)
sketch9.addGeometry(Part.LineSegment(V(-60.2, -29.5, 0), V(-47.2, -29.5, 0)), False)
sketch9.addGeometry(Part.LineSegment(V(-47.2, -29.5, 0), V(-47.2, -26.5, 0)), False)
sketch9.addGeometry(Part.LineSegment(V(-47.2, -26.5, 0), V(-57.2, -26.5, 0)), False)
sketch9.addGeometry(Part.LineSegment(V(-57.2, -26.5, 0), V(-57.2, -16.5, 0)), False)
sketch9.addGeometry(Part.LineSegment(V(-57.2, -16.5, 0), V(-60.2, -16.5, 0)), False)
sketch9.addGeometry(Part.LineSegment(V(-60.2, -16.5, 0), V(-60.2, -29.5, 0)), False)
sketch9.addGeometry(Part.LineSegment(V(33.8, 26.5, 0), V(33.8, 16.5, 0)), False)
sketch9.addGeometry(Part.LineSegment(V(33.8, 16.5, 0), V(36.8, 16.5, 0)), False)
sketch9.addGeometry(Part.LineSegment(V(36.8, 16.5, 0), V(36.8, 29.5, 0)), False)
sketch9.addGeometry(Part.LineSegment(V(36.8, 29.5, 0), V(23.8, 29.5, 0)), False)
sketch9.addGeometry(Part.LineSegment(V(23.8, 29.5, 0), V(23.8, 26.5, 0)), False)
sketch9.addGeometry(Part.LineSegment(V(23.8, 26.5, 0), V(33.8, 26.5, 0)), False)
sketch9.addGeometry(Part.LineSegment(V(23.8, -26.5, 0), V(23.8, -29.5, 0)), False)
sketch9.addGeometry(Part.LineSegment(V(23.8, -29.5, 0), V(36.8, -29.5, 0)), False)
sketch9.addGeometry(Part.LineSegment(V(36.8, -29.5, 0), V(36.8, -16.5, 0)), False)
sketch9.addGeometry(Part.LineSegment(V(36.8, -16.5, 0), V(33.8, -16.5, 0)), False)
sketch9.addGeometry(Part.LineSegment(V(33.8, -16.5, 0), V(33.8, -26.5, 0)), False)
sketch9.addGeometry(Part.LineSegment(V(33.8, -26.5, 0), V(23.8, -26.5, 0)), False)
sketch9.addConstraint(Sketcher.Constraint("Coincident", 0, 2, 1, 1))
sketch9.addConstraint(Sketcher.Constraint("Coincident", 1, 2, 2, 1))
sketch9.addConstraint(Sketcher.Constraint("Coincident", 2, 2, 3, 1))
sketch9.addConstraint(Sketcher.Constraint("Coincident", 3, 2, 4, 1))
sketch9.addConstraint(Sketcher.Constraint("Coincident", 4, 2, 5, 1))
sketch9.addConstraint(Sketcher.Constraint("Coincident", 5, 2, 0, 1))
sketch9.addConstraint(Sketcher.Constraint("Coincident", 6, 2, 7, 1))
sketch9.addConstraint(Sketcher.Constraint("Coincident", 7, 2, 8, 1))
sketch9.addConstraint(Sketcher.Constraint("Coincident", 8, 2, 9, 1))
sketch9.addConstraint(Sketcher.Constraint("Coincident", 9, 2, 10, 1))
sketch9.addConstraint(Sketcher.Constraint("Coincident", 10, 2, 11, 1))
sketch9.addConstraint(Sketcher.Constraint("Coincident", 11, 2, 6, 1))
sketch9.addConstraint(Sketcher.Constraint("Coincident", 12, 2, 13, 1))
sketch9.addConstraint(Sketcher.Constraint("Coincident", 13, 2, 14, 1))
sketch9.addConstraint(Sketcher.Constraint("Coincident", 14, 2, 15, 1))
sketch9.addConstraint(Sketcher.Constraint("Coincident", 15, 2, 16, 1))
sketch9.addConstraint(Sketcher.Constraint("Coincident", 16, 2, 17, 1))
sketch9.addConstraint(Sketcher.Constraint("Coincident", 17, 2, 12, 1))
sketch9.addConstraint(Sketcher.Constraint("Coincident", 18, 2, 19, 1))
sketch9.addConstraint(Sketcher.Constraint("Coincident", 19, 2, 20, 1))
sketch9.addConstraint(Sketcher.Constraint("Coincident", 20, 2, 21, 1))
sketch9.addConstraint(Sketcher.Constraint("Coincident", 21, 2, 22, 1))
sketch9.addConstraint(Sketcher.Constraint("Coincident", 22, 2, 23, 1))
sketch9.addConstraint(Sketcher.Constraint("Coincident", 23, 2, 18, 1))
sketch9.addConstraint(Sketcher.Constraint("Horizontal", 0))
sketch9.addConstraint(Sketcher.Constraint("Vertical", 1))
sketch9.addConstraint(Sketcher.Constraint("Horizontal", 2))
sketch9.addConstraint(Sketcher.Constraint("Vertical", 3))
sketch9.addConstraint(Sketcher.Constraint("Horizontal", 4))
sketch9.addConstraint(Sketcher.Constraint("Vertical", 5))
sketch9.addConstraint(Sketcher.Constraint("Horizontal", 6))
sketch9.addConstraint(Sketcher.Constraint("Vertical", 7))
sketch9.addConstraint(Sketcher.Constraint("Horizontal", 8))
sketch9.addConstraint(Sketcher.Constraint("Vertical", 9))
sketch9.addConstraint(Sketcher.Constraint("Horizontal", 10))
sketch9.addConstraint(Sketcher.Constraint("Vertical", 11))
sketch9.addConstraint(Sketcher.Constraint("Vertical", 12))
sketch9.addConstraint(Sketcher.Constraint("Horizontal", 13))
sketch9.addConstraint(Sketcher.Constraint("Vertical", 14))
sketch9.addConstraint(Sketcher.Constraint("Horizontal", 15))
sketch9.addConstraint(Sketcher.Constraint("Vertical", 16))
sketch9.addConstraint(Sketcher.Constraint("Horizontal", 17))
sketch9.addConstraint(Sketcher.Constraint("Vertical", 18))
sketch9.addConstraint(Sketcher.Constraint("Horizontal", 19))
sketch9.addConstraint(Sketcher.Constraint("Vertical", 20))
sketch9.addConstraint(Sketcher.Constraint("Horizontal", 21))
sketch9.addConstraint(Sketcher.Constraint("Vertical", 22))
sketch9.addConstraint(Sketcher.Constraint("Horizontal", 23))
sketch9.addConstraint(Sketcher.Constraint("Symmetric", 5, 2, 6, 2, -1))
sketch9.addConstraint(Sketcher.Constraint("Symmetric", 3, 2, 8, 2, -1))
sketch9.addConstraint(Sketcher.Constraint("Symmetric", 1, 2, 10, 2, -1))
sketch9.addConstraint(Sketcher.Constraint("Symmetric", 15, 2, 18, 2, -1))
sketch9.addConstraint(Sketcher.Constraint("Symmetric", 13, 2, 20, 2, -1))
sketch9.addConstraint(Sketcher.Constraint("Symmetric", 17, 2, 22, 2, -1))
sketch9.addConstraint(Sketcher.Constraint("Horizontal", 2, 2, 12, 2))
sketch9.addConstraint(Sketcher.Constraint("Horizontal", 5, 2, 14, 2))
sketch9.addConstraint(Sketcher.Constraint("Horizontal", 4, 2, 16, 2))
sketch9.addConstraint(Sketcher.Constraint("Equal", 10, 13))
sketch9.addConstraint(Sketcher.Constraint("Equal", 6, 15))
sketch9.addConstraint(Sketcher.Constraint("Equal", 19, 1))
sketch9.addConstraint(Sketcher.Constraint("Equal", 23, 3))
sketch9.addConstraint(Sketcher.Constraint("DistanceX", 0, 2, 0, 1, 13.0))
sketch9.addConstraint(Sketcher.Constraint("DistanceX", 2, 1, 2, 2, 3.0))
sketch9.addConstraint(Sketcher.Constraint("DistanceY", 6, 2, 2, 2, 46.0))
sketch9.addConstraint(Sketcher.Constraint("DistanceX", 4, 2, 12, 2, 81.0))
sketch9.addConstraint(Sketcher.Constraint("DistanceX", 0, 2, -1, 1, 60.25))
sketch9.setExpression("Constraints[61]", "Params.sketch9_width")
sketch9.setExpression("Constraints[62]", "Params.sketch9_width2")
pad5 = body.newObject("PartDesign::Pad", "Pad004")
pad5.Profile = sketch9
pad5.setExpression("Length", "Params.pad5_length")

# Sketch on XZ plane
sketch10 = body.newObject("Sketcher::SketchObject", "Sketch009")
sketch10.AttachmentSupport = (doc.getObject("XZ_Plane"), [""])
sketch10.MapMode = "FlatFace"
sketch10.addGeometry(Part.LineSegment(V(-63, 90, 0), V(-63, 78, 0)), False)
sketch10.addGeometry(Part.LineSegment(V(-63, 78, 0), V(-54, 78, 0)), False)
sketch10.addGeometry(Part.LineSegment(V(-54, 78, 0), V(-54, 90, 0)), False)
sketch10.addGeometry(Part.LineSegment(V(-54, 90, 0), V(-63, 90, 0)), False)
sketch10.addConstraint(Sketcher.Constraint("Coincident", 0, 2, 1, 1))
sketch10.addConstraint(Sketcher.Constraint("Coincident", 1, 2, 2, 1))
sketch10.addConstraint(Sketcher.Constraint("Coincident", 2, 2, 3, 1))
sketch10.addConstraint(Sketcher.Constraint("Coincident", 3, 2, 0, 1))
sketch10.addConstraint(Sketcher.Constraint("Vertical", 0))
sketch10.addConstraint(Sketcher.Constraint("Horizontal", 1))
sketch10.addConstraint(Sketcher.Constraint("Vertical", 2))
sketch10.addConstraint(Sketcher.Constraint("Horizontal", 3))
sketch10.addConstraint(Sketcher.Constraint("DistanceY", 0, 2, 0, 1, 12.0))
sketch10.addConstraint(Sketcher.Constraint("DistanceX", 1, 1, 1, 2, 9.3))
sketch10.addConstraint(Sketcher.Constraint("DistanceY", -1, 1, 0, 2, 78.0))
sketch10.addConstraint(Sketcher.Constraint("DistanceX", 0, 2, -1, 1, 63.45))
sketch10.setExpression("Constraints[8]", "Params.sketch10_height")
sketch10.setExpression("Constraints[9]", "Params.sketch10_width")
pocket5 = body.newObject("PartDesign::Pocket", "Pocket004")
pocket5.Profile = sketch10
pocket5.setExpression("Length", "Params.pocket5_length")

doc.recompute()
